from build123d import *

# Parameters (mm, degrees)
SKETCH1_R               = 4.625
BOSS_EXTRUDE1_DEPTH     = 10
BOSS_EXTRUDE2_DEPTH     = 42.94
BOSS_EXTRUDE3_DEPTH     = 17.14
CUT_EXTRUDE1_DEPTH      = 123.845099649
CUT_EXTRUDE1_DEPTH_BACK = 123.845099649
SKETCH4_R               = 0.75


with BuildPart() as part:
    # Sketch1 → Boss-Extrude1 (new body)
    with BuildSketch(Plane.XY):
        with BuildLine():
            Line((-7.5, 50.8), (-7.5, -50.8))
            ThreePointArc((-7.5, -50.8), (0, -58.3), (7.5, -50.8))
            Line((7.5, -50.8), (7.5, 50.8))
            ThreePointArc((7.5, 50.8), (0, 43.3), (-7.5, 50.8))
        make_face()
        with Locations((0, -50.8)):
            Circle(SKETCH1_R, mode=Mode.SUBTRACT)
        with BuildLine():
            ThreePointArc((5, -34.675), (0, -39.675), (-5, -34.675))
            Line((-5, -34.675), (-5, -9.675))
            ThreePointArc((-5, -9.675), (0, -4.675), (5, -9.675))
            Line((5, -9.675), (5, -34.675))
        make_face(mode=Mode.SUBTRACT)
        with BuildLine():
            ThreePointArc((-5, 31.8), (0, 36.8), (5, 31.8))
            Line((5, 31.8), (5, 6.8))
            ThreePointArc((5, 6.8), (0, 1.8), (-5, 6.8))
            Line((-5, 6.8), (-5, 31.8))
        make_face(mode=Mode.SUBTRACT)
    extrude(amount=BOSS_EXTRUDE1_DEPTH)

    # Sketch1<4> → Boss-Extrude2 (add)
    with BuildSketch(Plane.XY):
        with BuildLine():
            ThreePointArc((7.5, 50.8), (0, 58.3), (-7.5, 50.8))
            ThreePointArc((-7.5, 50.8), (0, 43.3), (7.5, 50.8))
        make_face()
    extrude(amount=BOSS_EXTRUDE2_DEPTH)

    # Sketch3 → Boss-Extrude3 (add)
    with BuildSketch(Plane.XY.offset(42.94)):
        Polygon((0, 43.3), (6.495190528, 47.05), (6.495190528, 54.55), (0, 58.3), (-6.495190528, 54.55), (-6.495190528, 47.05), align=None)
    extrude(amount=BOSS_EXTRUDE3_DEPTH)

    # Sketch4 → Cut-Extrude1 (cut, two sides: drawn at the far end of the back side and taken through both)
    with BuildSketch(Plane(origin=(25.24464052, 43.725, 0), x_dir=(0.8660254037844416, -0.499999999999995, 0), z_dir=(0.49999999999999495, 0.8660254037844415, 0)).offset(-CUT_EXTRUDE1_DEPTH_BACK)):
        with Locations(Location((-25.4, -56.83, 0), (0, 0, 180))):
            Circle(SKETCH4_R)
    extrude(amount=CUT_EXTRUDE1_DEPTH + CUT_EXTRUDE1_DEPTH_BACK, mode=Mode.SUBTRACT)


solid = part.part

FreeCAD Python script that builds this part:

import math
import FreeCAD as App
import Part
import Sketcher
Q = App.Units.Quantity


def add_polygon(sketch, points):
    """Adds a closed chain of lines whose ends are joined by coincident constraints."""
    first, n = sketch.GeometryCount, len(points)
    for a, b in zip(points, points[1:] + points[:1]):
        sketch.addGeometry(Part.LineSegment(App.Vector(*a, 0), App.Vector(*b, 0)), False)
    for i in range(n):
        sketch.addConstraint(Sketcher.Constraint("Coincident", first + i, 2, first + (i + 1) % n, 1))

doc = App.newDocument("Part")
params = doc.addObject("Spreadsheet::Sheet", "Params")
for row, (alias, value) in enumerate([
    ("sketch1_radius", "5 mm"),
    ("sketch1_radius2", "7.5 mm"),
    ("sketch1_diameter", "9.25 mm"),
    ("sketch1_height", "25 mm"),
    ("sketch1_height2", "101.6 mm"),
    ("pad1_length", "10 mm"),
    ("sketch2_diameter", "15 mm"),
    ("pad2_length", "42.94 mm"),
    ("sketch3_height", "7.5 mm"),
    ("pad3_length", "17.14 mm"),
    ("sketch4_diameter", "1.5 mm"),
], start=1):
    params.set(f"A{row}", alias)
    params.set(f"B{row}", "=" + value)
    params.setAlias(f"B{row}", alias)

body = doc.addObject("PartDesign::Body", "Body")

# Sketch on XY plane
sketch1 = body.newObject("Sketcher::SketchObject", "Sketch")
sketch1.AttachmentSupport = (doc.getObject("XY_Plane"), [""])
sketch1.MapMode = "FlatFace"
sketch1.addGeometry(Part.LineSegment(App.Vector(-7.5, 50.8, 0), App.Vector(-7.5, -50.8, 0)), False)
sketch1.addGeometry(Part.ArcOfCircle(Part.Circle(App.Vector(0, -50.8, 0), App.Vector(0, 0, 1), 7.5), math.radians(180), math.radians(360)), False)
sketch1.addGeometry(Part.LineSegment(App.Vector(7.5, -50.8, 0), App.Vector(7.5, 50.8, 0)), False)
sketch1.addGeometry(Part.ArcOfCircle(Part.Circle(App.Vector(0, 50.8, 0), App.Vector(0, 0, 1), 7.5), math.radians(180), math.radians(360)), False)
sketch1.addGeometry(Part.Circle(App.Vector(0, -50.8, 0), App.Vector(0, 0, 1), 4.625), False)
sketch1.addGeometry(Part.LineSegment(App.Vector(5, -9.675, 0), App.Vector(5, -34.675, 0)), False)
sketch1.addGeometry(Part.ArcOfCircle(Part.Circle(App.Vector(0, -34.675, 0), App.Vector(0, 0, 1), 5), math.radians(180), math.radians(360)), False)
sketch1.addGeometry(Part.LineSegment(App.Vector(-5, -34.675, 0), App.Vector(-5, -9.675, 0)), False)
sketch1.addGeometry(Part.ArcOfCircle(Part.Circle(App.Vector(0, -9.675, 0), App.Vector(0, 0, 1), 5), math.radians(0), math.radians(180)), False)
sketch1.addGeometry(Part.LineSegment(App.Vector(-5, 6.8, 0), App.Vector(-5, 31.8, 0)), False)
sketch1.addGeometry(Part.ArcOfCircle(Part.Circle(App.Vector(0, 31.8, 0), App.Vector(0, 0, 1), 5), math.radians(0), math.radians(180)), False)
sketch1.addGeometry(Part.LineSegment(App.Vector(5, 31.8, 0), App.Vector(5, 6.8, 0)), False)
sketch1.addGeometry(Part.ArcOfCircle(Part.Circle(App.Vector(0, 6.8, 0), App.Vector(0, 0, 1), 5), math.radians(180), math.radians(360)), False)
sketch1.addConstraint(Sketcher.Constraint("Tangent", 0, 2, 1, 1))
sketch1.addConstraint(Sketcher.Constraint("Tangent", 1, 2, 2, 1))
sketch1.addConstraint(Sketcher.Constraint("Tangent", 2, 2, 3, 2))
sketch1.addConstraint(Sketcher.Constraint("Tangent", 3, 1, 0, 1))
sketch1.addConstraint(Sketcher.Constraint("Tangent", 5, 2, 6, 2))
sketch1.addConstraint(Sketcher.Constraint("Tangent", 6, 1, 7, 1))
sketch1.addConstraint(Sketcher.Constraint("Tangent", 7, 2, 8, 2))
sketch1.addConstraint(Sketcher.Constraint("Tangent", 8, 1, 5, 1))
sketch1.addConstraint(Sketcher.Constraint("Tangent", 9, 2, 10, 2))
sketch1.addConstraint(Sketcher.Constraint("Tangent", 10, 1, 11, 1))
sketch1.addConstraint(Sketcher.Constraint("Tangent", 11, 2, 12, 2))
sketch1.addConstraint(Sketcher.Constraint("Tangent", 12, 1, 9, 1))
sketch1.addConstraint(Sketcher.Constraint("Vertical", 0))
sketch1.addConstraint(Sketcher.Constraint("Vertical", 2))
sketch1.addConstraint(Sketcher.Constraint("Vertical", 5))
sketch1.addConstraint(Sketcher.Constraint("Vertical", 7))
sketch1.addConstraint(Sketcher.Constraint("Vertical", 9))
sketch1.addConstraint(Sketcher.Constraint("Vertical", 11))
sketch1.addConstraint(Sketcher.Constraint("Coincident", 4, 3, 1, 3))
sketch1.addConstraint(Sketcher.Constraint("Equal", 8, 10))
sketch1.addConstraint(Sketcher.Constraint("Symmetric", 1, 3, 3, 3, -1, 1))
sketch1.addConstraint(Sketcher.Constraint("PointOnObject", 6, 3, -2))
sketch1.addConstraint(Sketcher.Constraint("PointOnObject", 10, 3, -2))
sketch1.addConstraint(Sketcher.Constraint("Equal", 7, 9))
sketch1.addConstraint(Sketcher.Constraint("Radius", 6, 5.0))
sketch1.addConstraint(Sketcher.Constraint("Radius", 1, 7.5))
sketch1.addConstraint(Sketcher.Constraint("Diameter", 4, 9.25))
sketch1.addConstraint(Sketcher.Constraint("DistanceY", 5, 2, 5, 1, 25.0))
sketch1.addConstraint(Sketcher.Constraint("DistanceY", 0, 2, 0, 1, 101.6))
sketch1.addConstraint(Sketcher.Constraint("DistanceY", 10, 3, 3, 3, 19.0))
sketch1.addConstraint(Sketcher.Constraint("DistanceY", 6, 3, -1, 1, 34.675))
sketch1.setExpression("Constraints[24]", "Params.sketch1_radius")
sketch1.setExpression("Constraints[25]", "Params.sketch1_radius2")
sketch1.setExpression("Constraints[26]", "Params.sketch1_diameter")
sketch1.setExpression("Constraints[27]", "Params.sketch1_height")
sketch1.setExpression("Constraints[28]", "Params.sketch1_height2")
pad1 = body.newObject("PartDesign::Pad", "Pad")
pad1.Profile = sketch1
pad1.setExpression("Length", "Params.pad1_length")

# Sketch on XY plane
sketch2 = body.newObject("Sketcher::SketchObject", "Sketch001")
sketch2.AttachmentSupport = (doc.getObject("XY_Plane"), [""])
sketch2.MapMode = "FlatFace"
sketch2.addGeometry(Part.Circle(App.Vector(0, 50.8, 0), App.Vector(0, 0, 1), 7.5), False)
sketch2.addConstraint(Sketcher.Constraint("PointOnObject", 0, 3, -2))
sketch2.addConstraint(Sketcher.Constraint("Diameter", 0, 15.0))
sketch2.addConstraint(Sketcher.Constraint("DistanceY", -1, 1, 0, 3, 50.8))
sketch2.setExpression("Constraints[1]", "Params.sketch2_diameter")
pad2 = body.newObject("PartDesign::Pad", "Pad001")
pad2.Profile = sketch2
pad2.setExpression("Length", "Params.pad2_length")

# Sketch on XY plane
sketch3 = body.newObject("Sketcher::SketchObject", "Sketch002")
sketch3.AttachmentSupport = (doc.getObject("XY_Plane"), [""])
sketch3.MapMode = "FlatFace"
sketch3.AttachmentOffset = App.Placement(App.Vector(0, 0, 42.94), App.Rotation())
add_polygon(sketch3, [(0, 43.3), (6.495191, 47.05), (6.495191, 54.55), (0, 58.3), (-6.495191, 54.55), (-6.495191, 47.05)])  # lines 0-5
sketch3.addConstraint(Sketcher.Constraint("Vertical", 1))
sketch3.addConstraint(Sketcher.Constraint("Vertical", 4))
sketch3.addConstraint(Sketcher.Constraint("Symmetric", 1, 2, 3, 2, -2))
sketch3.addConstraint(Sketcher.Constraint("PointOnObject", 2, 2, -2))
sketch3.addConstraint(Sketcher.Constraint("PointOnObject", 5, 2, -2))
sketch3.addConstraint(Sketcher.Constraint("Parallel", 0, 3))
sketch3.addConstraint(Sketcher.Constraint("Parallel", 2, 5))
sketch3.addConstraint(Sketcher.Constraint("Angle", 0, Q("30 deg")))
sketch3.addConstraint(Sketcher.Constraint("DistanceY", 1, 1, 1, 2, 7.5))
sketch3.addConstraint(Sketcher.Constraint("DistanceY", 5, 2, 2, 2, 15.0))
sketch3.addConstraint(Sketcher.Constraint("DistanceY", -1, 1, 2, 2, 58.3))
sketch3.setExpression("Constraints[14]", "Params.sketch3_height")
pad3 = body.newObject("PartDesign::Pad", "Pad002")
pad3.Profile = sketch3
pad3.setExpression("Length", "Params.pad3_length")

# Sketch on an angled plane
sketch4 = body.newObject("Sketcher::SketchObject", "Sketch003")
sketch4.Placement = App.Placement(App.Vector(25.244641, 43.725, 0), App.Rotation(App.Vector(0.866025404, -0.5, 0), App.Vector(0, 0, -1), App.Vector(0.5, 0.866025404, 0), "ZXY"))
sketch4.addGeometry(Part.Circle(App.Vector(-25.4, -56.83, 0), App.Vector(0, 0, 1), 0.75), False)
sketch4.addConstraint(Sketcher.Constraint("Diameter", 0, 1.5))
sketch4.addConstraint(Sketcher.Constraint("DistanceX", 0, 3, -1, 1, 25.4))
sketch4.addConstraint(Sketcher.Constraint("DistanceY", 0, 3, -1, 1, 56.83))
sketch4.setExpression("Constraints[0]", "Params.sketch4_diameter")
pocket1 = body.newObject("PartDesign::Pocket", "Pocket")
pocket1.Profile = sketch4
pocket1.Type = "ThroughAll"
pocket1.Midplane = True

doc.recompute()
